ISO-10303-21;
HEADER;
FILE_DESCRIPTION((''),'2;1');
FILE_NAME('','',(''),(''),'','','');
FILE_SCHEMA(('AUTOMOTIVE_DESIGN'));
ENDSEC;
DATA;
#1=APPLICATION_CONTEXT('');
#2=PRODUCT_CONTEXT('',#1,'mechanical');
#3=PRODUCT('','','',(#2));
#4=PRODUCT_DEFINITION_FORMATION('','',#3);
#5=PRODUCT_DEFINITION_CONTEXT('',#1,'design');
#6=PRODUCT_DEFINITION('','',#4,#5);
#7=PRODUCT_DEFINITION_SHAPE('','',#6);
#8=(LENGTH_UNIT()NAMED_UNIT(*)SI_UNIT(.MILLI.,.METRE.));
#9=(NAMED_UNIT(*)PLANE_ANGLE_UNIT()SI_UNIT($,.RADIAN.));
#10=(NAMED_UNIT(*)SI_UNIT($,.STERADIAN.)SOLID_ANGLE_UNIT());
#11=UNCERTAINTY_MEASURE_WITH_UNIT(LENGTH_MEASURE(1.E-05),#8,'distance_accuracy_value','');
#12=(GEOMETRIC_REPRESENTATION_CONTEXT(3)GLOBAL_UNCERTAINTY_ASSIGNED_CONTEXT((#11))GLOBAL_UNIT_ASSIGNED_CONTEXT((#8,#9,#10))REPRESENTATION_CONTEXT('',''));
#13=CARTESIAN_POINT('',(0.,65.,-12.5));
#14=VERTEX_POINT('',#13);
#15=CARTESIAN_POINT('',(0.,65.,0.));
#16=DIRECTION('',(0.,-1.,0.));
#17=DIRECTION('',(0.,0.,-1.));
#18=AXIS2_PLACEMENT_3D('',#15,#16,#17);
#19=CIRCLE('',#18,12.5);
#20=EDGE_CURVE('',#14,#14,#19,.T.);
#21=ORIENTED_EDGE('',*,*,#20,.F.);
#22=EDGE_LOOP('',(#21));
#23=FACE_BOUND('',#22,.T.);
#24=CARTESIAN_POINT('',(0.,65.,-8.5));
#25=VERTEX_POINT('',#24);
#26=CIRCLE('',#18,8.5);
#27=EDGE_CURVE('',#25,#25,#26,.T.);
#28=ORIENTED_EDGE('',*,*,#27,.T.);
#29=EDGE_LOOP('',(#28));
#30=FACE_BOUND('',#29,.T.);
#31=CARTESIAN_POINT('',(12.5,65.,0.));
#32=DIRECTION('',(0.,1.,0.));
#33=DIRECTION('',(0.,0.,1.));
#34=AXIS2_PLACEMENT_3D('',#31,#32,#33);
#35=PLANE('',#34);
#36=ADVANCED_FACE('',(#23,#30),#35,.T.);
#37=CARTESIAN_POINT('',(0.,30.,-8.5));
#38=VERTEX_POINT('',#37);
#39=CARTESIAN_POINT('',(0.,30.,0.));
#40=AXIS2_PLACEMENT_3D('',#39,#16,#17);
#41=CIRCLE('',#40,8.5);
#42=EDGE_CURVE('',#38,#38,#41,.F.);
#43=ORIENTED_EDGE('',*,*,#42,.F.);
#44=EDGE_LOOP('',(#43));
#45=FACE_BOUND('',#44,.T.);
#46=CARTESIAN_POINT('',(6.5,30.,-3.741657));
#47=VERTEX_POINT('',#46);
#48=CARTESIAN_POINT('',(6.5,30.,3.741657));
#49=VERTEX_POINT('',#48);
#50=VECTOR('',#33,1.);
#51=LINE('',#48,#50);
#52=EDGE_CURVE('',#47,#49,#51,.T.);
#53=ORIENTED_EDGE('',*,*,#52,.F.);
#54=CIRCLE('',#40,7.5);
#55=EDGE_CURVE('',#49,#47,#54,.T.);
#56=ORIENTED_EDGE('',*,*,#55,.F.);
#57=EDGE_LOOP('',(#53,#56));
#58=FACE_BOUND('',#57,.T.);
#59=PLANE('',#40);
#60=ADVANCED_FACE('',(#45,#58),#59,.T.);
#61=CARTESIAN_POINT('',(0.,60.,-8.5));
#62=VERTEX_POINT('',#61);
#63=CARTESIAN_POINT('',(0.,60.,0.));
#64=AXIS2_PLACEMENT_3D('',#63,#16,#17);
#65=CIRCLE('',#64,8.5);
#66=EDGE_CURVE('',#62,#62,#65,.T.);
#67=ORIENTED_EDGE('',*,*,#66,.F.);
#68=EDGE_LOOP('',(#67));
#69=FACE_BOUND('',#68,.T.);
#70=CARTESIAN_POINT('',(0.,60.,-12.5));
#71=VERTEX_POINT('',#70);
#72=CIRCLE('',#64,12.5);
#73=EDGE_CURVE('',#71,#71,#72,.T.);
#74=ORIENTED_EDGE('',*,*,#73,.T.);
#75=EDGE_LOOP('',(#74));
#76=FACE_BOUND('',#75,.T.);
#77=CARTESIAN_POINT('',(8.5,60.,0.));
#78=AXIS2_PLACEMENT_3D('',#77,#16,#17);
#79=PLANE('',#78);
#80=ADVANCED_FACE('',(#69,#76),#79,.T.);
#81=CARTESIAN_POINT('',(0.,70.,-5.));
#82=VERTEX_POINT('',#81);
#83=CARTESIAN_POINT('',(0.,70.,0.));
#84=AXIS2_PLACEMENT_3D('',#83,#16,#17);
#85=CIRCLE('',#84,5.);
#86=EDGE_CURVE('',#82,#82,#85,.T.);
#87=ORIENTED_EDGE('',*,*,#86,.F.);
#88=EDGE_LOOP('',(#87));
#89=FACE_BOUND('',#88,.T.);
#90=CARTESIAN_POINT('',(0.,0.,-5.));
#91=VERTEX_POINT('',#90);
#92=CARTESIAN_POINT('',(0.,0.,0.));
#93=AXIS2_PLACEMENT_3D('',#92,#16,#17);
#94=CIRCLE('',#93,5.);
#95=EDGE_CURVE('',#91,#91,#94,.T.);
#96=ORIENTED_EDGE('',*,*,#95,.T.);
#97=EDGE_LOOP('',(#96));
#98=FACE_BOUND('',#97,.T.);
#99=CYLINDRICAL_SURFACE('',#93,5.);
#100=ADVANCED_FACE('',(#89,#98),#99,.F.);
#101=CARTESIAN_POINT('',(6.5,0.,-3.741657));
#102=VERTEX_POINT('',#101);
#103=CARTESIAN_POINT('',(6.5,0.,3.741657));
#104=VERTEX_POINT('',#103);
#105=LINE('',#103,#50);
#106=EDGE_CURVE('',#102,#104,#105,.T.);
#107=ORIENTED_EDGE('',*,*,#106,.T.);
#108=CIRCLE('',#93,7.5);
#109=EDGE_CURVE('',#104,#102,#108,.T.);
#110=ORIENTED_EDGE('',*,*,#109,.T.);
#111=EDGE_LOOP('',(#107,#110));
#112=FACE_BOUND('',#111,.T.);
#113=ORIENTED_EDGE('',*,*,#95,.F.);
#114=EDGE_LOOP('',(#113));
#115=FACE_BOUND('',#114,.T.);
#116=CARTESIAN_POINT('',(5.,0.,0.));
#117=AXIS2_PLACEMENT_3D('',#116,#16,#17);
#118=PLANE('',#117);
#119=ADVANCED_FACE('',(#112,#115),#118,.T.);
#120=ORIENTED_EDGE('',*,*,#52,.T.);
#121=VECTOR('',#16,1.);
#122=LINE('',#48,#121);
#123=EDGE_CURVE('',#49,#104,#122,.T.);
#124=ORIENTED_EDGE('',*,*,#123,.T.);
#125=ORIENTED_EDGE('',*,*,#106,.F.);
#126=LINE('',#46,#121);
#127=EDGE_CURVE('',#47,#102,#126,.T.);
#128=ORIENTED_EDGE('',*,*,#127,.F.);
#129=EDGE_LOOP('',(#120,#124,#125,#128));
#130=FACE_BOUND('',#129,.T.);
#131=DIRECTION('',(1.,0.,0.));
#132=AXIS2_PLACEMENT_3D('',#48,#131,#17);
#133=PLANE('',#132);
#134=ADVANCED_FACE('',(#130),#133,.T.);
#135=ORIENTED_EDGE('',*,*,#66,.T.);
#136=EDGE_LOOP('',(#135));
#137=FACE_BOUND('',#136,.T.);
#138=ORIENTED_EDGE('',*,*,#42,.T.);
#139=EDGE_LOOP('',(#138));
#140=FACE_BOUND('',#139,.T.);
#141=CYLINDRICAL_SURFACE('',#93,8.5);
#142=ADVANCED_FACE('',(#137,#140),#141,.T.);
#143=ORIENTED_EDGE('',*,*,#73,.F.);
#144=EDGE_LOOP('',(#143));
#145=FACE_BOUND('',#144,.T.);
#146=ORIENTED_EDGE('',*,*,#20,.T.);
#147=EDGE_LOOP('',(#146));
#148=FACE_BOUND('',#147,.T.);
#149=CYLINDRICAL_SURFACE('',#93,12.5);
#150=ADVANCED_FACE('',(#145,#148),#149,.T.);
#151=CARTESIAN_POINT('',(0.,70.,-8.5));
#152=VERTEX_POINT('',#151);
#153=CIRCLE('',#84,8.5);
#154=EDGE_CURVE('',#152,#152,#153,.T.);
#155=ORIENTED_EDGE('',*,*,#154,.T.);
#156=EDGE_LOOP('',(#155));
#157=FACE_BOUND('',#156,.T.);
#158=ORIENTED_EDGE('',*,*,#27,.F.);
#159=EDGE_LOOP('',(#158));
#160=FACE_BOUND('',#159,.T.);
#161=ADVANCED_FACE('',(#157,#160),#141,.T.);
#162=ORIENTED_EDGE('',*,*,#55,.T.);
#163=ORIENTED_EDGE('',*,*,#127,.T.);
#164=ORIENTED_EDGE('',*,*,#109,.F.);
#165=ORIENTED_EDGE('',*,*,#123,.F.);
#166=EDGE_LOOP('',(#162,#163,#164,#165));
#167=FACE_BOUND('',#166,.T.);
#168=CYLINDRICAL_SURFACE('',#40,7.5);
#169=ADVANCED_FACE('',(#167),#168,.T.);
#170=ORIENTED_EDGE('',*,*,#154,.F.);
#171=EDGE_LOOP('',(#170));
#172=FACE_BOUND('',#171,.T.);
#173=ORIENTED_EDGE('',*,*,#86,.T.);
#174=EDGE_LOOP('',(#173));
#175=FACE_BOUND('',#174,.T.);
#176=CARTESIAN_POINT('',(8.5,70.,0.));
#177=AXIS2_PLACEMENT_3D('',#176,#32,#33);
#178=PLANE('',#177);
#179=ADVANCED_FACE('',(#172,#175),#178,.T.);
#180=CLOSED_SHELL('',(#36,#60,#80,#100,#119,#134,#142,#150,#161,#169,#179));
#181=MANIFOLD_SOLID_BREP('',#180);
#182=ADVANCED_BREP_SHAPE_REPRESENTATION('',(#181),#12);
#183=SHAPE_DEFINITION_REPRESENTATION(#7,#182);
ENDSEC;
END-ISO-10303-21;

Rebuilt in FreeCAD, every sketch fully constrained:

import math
import FreeCAD as App
import Part
import Sketcher
Q = App.Units.Quantity


def add_polygon(sketch, points):
    """Adds a closed chain of lines whose ends are joined by coincident constraints."""
    first, n = sketch.GeometryCount, len(points)
    for a, b in zip(points, points[1:] + points[:1]):
        sketch.addGeometry(Part.LineSegment(App.Vector(*a, 0), App.Vector(*b, 0)), False)
    for i in range(n):
        sketch.addConstraint(Sketcher.Constraint("Coincident", first + i, 2, first + (i + 1) % n, 1))

doc = App.newDocument("Part")
body = doc.addObject("PartDesign::Body", "Body")

sketch1 = body.newObject("Sketcher::SketchObject", "Sketch")
sketch1.AttachmentSupport = (doc.getObject("XY_Plane"), [""])
sketch1.MapMode = "FlatFace"
add_polygon(sketch1, [(5, 70), (5, 0), (8.5, 0), (8.5, 60), (12.5, 60), (12.5, 65), (8.5, 65), (8.5, 70)])
sketch1.addConstraint([
    Sketcher.Constraint("Vertical", 0),
    Sketcher.Constraint("Horizontal", 1),
    Sketcher.Constraint("Vertical", 2),
    Sketcher.Constraint("Horizontal", 3),
    Sketcher.Constraint("Vertical", 4),
    Sketcher.Constraint("Horizontal", 5),
    Sketcher.Constraint("Vertical", 6),
    Sketcher.Constraint("Horizontal", 7),
    Sketcher.Constraint("PointOnObject", 0, 2, -1),
    Sketcher.Constraint("Vertical", 2, 2, 5, 2),
    Sketcher.Constraint("Equal", 4, 6),
    Sketcher.Constraint("DistanceX", 3, 1, 3, 2, Q("4 mm")),
    Sketcher.Constraint("DistanceY", 0, 2, 0, 1, Q("70 mm")),
    Sketcher.Constraint("DistanceY", 2, 1, 2, 2, Q("60 mm")),
    Sketcher.Constraint("DistanceX", 1, 1, 1, 2, Q("3.5 mm")),
    Sketcher.Constraint("DistanceX", -1, 1, 0, 2, Q("5 mm")),
])
revolution = body.newObject("PartDesign::Revolution", "Revolution")
revolution.Profile = sketch1
revolution.ReferenceAxis = (sketch1, ["V_Axis"])
revolution.Angle = 360

sketch2 = body.newObject("Sketcher::SketchObject", "Sketch001")
sketch2.AttachmentSupport = (doc.getObject("XZ_Plane"), [""])
sketch2.MapMode = "FlatFace"
add_polygon(sketch2, [(-21.342, 21.342), (-21.342, -21.342), (21.342, -21.342), (21.342, 21.342)])
sketch2.addGeometry(Part.ArcOfCircle(Part.Circle(App.Vector(0, 0, 0), App.Vector(0, 0, 1), 7.5), math.radians(29.926435), math.radians(330.073565)), False)
sketch2.addGeometry(Part.LineSegment(App.Vector(6.5, 3.741657, 0), App.Vector(6.5, -3.741657, 0)), False)
sketch2.addConstraint([
    Sketcher.Constraint("Coincident", 4, 1, 5, 1),
    Sketcher.Constraint("Coincident", 5, 2, 4, 2),
    Sketcher.Constraint("Vertical", 0),
    Sketcher.Constraint("Horizontal", 1),
    Sketcher.Constraint("Vertical", 2),
    Sketcher.Constraint("Horizontal", 3),
    Sketcher.Constraint("Vertical", 5),
    Sketcher.Constraint("Coincident", 4, 3, -1, 1),
    Sketcher.Constraint("Symmetric", 0, 2, 2, 2, -1, 1),
    Sketcher.Constraint("Equal", 3, 0),
    Sketcher.Constraint("Radius", 4, Q("7.5 mm")),
    Sketcher.Constraint("DistanceX", -1, 1, 4, 1, Q("6.5 mm")),
    Sketcher.Constraint("DistanceX", 1, 1, 1, 2, Q("42.684 mm")),
])
pocket1 = body.newObject("PartDesign::Pocket", "Pocket")
pocket1.Profile = sketch2
pocket1.Length = 30

doc.recompute()
